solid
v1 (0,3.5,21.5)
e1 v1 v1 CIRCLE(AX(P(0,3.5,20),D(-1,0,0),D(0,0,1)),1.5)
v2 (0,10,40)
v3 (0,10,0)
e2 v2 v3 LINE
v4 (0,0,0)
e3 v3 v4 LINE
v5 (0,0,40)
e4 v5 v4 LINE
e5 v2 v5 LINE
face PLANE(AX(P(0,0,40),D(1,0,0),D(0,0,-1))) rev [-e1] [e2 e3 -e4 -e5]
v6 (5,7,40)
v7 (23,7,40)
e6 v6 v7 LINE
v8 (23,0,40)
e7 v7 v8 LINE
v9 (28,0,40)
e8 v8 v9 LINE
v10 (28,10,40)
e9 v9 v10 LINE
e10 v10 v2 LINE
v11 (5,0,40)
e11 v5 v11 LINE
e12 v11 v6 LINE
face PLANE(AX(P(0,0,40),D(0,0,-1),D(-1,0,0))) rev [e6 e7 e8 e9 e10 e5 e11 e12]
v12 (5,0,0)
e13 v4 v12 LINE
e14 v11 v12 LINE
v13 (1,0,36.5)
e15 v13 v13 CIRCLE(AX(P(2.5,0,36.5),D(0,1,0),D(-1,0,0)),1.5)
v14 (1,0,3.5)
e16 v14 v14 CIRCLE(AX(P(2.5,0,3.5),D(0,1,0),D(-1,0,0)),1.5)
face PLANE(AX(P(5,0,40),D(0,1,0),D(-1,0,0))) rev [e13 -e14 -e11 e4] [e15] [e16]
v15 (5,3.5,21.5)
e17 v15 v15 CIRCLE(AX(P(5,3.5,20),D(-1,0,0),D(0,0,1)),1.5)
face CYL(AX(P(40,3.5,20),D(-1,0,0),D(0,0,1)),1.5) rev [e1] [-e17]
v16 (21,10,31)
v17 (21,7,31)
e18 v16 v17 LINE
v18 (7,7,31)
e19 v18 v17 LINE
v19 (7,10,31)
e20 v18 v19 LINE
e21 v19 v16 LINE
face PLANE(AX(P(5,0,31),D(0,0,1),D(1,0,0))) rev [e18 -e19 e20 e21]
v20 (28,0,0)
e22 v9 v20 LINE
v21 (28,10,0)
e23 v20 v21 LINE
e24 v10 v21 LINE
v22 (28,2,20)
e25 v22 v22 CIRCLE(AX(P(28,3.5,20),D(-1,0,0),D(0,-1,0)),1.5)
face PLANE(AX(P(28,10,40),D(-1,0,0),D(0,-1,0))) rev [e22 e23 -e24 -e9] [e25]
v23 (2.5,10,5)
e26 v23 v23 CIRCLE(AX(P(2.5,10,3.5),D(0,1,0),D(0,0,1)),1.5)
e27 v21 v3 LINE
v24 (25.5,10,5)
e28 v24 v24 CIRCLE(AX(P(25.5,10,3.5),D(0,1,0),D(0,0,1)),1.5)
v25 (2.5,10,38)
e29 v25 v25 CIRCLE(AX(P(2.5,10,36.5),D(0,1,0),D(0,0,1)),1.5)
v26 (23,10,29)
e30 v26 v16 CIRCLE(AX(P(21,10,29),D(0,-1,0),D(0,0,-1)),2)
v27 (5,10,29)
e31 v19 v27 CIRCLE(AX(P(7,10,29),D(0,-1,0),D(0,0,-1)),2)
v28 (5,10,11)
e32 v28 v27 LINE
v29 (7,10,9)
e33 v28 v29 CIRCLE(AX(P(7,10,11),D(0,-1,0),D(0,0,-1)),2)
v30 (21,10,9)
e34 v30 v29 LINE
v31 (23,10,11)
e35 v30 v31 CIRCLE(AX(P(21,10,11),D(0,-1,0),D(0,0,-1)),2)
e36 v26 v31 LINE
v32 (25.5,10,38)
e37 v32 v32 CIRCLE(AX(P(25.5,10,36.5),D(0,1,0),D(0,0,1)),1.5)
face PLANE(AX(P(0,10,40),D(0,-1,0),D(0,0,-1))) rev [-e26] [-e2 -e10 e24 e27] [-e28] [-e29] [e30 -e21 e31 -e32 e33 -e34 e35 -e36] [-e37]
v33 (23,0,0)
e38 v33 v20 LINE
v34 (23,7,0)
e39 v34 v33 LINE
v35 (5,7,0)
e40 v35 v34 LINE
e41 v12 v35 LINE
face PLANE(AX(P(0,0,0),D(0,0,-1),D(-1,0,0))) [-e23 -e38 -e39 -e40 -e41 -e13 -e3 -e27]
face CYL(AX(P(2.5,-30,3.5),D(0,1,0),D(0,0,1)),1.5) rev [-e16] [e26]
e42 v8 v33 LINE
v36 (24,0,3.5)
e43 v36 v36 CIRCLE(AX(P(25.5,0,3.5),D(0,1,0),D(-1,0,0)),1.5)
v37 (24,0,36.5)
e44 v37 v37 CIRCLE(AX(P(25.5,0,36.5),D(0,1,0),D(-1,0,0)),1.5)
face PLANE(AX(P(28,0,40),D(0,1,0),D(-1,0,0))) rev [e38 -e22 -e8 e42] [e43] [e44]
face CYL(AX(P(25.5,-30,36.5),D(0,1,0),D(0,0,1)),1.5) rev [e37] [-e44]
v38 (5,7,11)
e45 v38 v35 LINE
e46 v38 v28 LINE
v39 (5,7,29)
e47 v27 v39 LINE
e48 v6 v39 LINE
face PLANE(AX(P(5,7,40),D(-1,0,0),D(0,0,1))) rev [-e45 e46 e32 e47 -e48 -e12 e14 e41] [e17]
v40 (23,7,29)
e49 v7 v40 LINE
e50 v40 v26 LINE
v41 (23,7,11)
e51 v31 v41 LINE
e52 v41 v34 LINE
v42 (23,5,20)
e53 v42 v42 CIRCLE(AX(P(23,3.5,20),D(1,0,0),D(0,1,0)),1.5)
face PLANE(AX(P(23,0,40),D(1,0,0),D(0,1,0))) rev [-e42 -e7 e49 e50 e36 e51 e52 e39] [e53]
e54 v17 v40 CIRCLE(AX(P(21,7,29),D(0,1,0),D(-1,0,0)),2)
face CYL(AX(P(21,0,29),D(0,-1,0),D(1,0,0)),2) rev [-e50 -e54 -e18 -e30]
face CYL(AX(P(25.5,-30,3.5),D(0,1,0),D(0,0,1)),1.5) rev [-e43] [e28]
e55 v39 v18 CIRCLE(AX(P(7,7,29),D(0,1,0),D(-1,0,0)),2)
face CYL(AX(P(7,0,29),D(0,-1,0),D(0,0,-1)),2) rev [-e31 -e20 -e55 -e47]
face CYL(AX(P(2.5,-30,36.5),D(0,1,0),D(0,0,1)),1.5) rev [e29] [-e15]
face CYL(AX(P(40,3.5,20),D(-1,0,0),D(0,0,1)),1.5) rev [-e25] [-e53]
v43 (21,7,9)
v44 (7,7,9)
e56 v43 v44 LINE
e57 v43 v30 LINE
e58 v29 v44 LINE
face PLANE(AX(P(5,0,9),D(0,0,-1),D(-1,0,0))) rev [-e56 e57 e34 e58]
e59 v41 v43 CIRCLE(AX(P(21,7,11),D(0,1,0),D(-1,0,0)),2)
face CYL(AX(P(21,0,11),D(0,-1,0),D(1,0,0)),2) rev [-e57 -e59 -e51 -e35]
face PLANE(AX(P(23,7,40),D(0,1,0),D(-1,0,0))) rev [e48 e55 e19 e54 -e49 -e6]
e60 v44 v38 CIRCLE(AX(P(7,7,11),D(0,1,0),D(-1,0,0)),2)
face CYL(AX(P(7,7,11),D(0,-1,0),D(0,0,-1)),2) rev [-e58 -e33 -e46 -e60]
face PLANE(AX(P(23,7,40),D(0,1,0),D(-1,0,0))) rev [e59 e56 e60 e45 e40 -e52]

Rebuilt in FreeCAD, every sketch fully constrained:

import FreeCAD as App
import Part
import Sketcher

V = App.Vector
Q = App.Units.Quantity


def edges_at(feature, points):
    """Names of the edges that pass closest to the given points."""
    edges = feature.Shape.Edges
    near = lambda p: min(range(len(edges)), key=lambda i: edges[i].distToShape(Part.Vertex(*p))[0])
    return sorted({f"Edge{near(p) + 1}" for p in points})

doc = App.newDocument("Part")
params = doc.addObject("Spreadsheet::Sheet", "Params")
for row, (alias, value) in enumerate([
    ("sketch1_width", "5 mm"),
    ("sketch1_width2", "18 mm"),
    ("sketch1_height", "10 mm"),
    ("sketch1_height2", "7 mm"),
    ("pad1_length", "40 mm"),
    ("sketch2_diameter", "3 mm"),
    ("pocket1_length", "40 mm"),
    ("sketch3_diameter", "3 mm"),
    ("pocket2_length", "40 mm"),
    ("sketch4_width", "18 mm"),
    ("sketch4_height", "22 mm"),
    ("fillet_radius", "2 mm"),
], start=1):
    params.set(f"A{row}", alias)
    params.set(f"B{row}", "=" + value)
    params.setAlias(f"B{row}", alias)

body = doc.addObject("PartDesign::Body", "Body")

# Sketch on XY plane
sketch1 = body.newObject("Sketcher::SketchObject", "Sketch")
sketch1.AttachmentSupport = (doc.getObject("XY_Plane"), [""])
sketch1.MapMode = "FlatFace"
sketch1.addGeometry(Part.LineSegment(V(0, 10, 0), V(0, 0, 0)), False)
sketch1.addGeometry(Part.LineSegment(V(0, 0, 0), V(5, 0, 0)), False)
sketch1.addGeometry(Part.LineSegment(V(5, 0, 0), V(5, 7, 0)), False)
sketch1.addGeometry(Part.LineSegment(V(5, 7, 0), V(23, 7, 0)), False)
sketch1.addGeometry(Part.LineSegment(V(23, 7, 0), V(23, 0, 0)), False)
sketch1.addGeometry(Part.LineSegment(V(23, 0, 0), V(28, 0, 0)), False)
sketch1.addGeometry(Part.LineSegment(V(28, 0, 0), V(28, 10, 0)), False)
sketch1.addGeometry(Part.LineSegment(V(28, 10, 0), V(0, 10, 0)), False)
sketch1.addConstraint(Sketcher.Constraint("Coincident", 0, 2, 1, 1))
sketch1.addConstraint(Sketcher.Constraint("Coincident", 1, 2, 2, 1))
sketch1.addConstraint(Sketcher.Constraint("Coincident", 2, 2, 3, 1))
sketch1.addConstraint(Sketcher.Constraint("Coincident", 3, 2, 4, 1))
sketch1.addConstraint(Sketcher.Constraint("Coincident", 4, 2, 5, 1))
sketch1.addConstraint(Sketcher.Constraint("Coincident", 5, 2, 6, 1))
sketch1.addConstraint(Sketcher.Constraint("Coincident", 6, 2, 7, 1))
sketch1.addConstraint(Sketcher.Constraint("Coincident", 7, 2, 0, 1))
sketch1.addConstraint(Sketcher.Constraint("Vertical", 0))
sketch1.addConstraint(Sketcher.Constraint("Horizontal", 1))
sketch1.addConstraint(Sketcher.Constraint("Vertical", 2))
sketch1.addConstraint(Sketcher.Constraint("Horizontal", 3))
sketch1.addConstraint(Sketcher.Constraint("Vertical", 4))
sketch1.addConstraint(Sketcher.Constraint("Horizontal", 5))
sketch1.addConstraint(Sketcher.Constraint("Vertical", 6))
sketch1.addConstraint(Sketcher.Constraint("Horizontal", 7))
sketch1.addConstraint(Sketcher.Constraint("Coincident", 0, 2, -1, 1))
sketch1.addConstraint(Sketcher.Constraint("PointOnObject", 4, 2, -1))
sketch1.addConstraint(Sketcher.Constraint("Equal", 1, 5))
sketch1.addConstraint(Sketcher.Constraint("DistanceX", 1, 1, 1, 2, Q("5 mm")))
sketch1.addConstraint(Sketcher.Constraint("DistanceX", 3, 1, 3, 2, Q("18 mm")))
sketch1.addConstraint(Sketcher.Constraint("DistanceY", 0, 2, 0, 1, Q("10 mm")))
sketch1.addConstraint(Sketcher.Constraint("DistanceY", 2, 1, 2, 2, Q("7 mm")))
sketch1.setExpression("Constraints[19]", "Params.sketch1_width")
sketch1.setExpression("Constraints[20]", "Params.sketch1_width2")
sketch1.setExpression("Constraints[21]", "Params.sketch1_height")
sketch1.setExpression("Constraints[22]", "Params.sketch1_height2")
pad1 = body.newObject("PartDesign::Pad", "Pad")
pad1.Profile = sketch1
pad1.setExpression("Length", "Params.pad1_length")

# Sketch on XZ plane
sketch2 = body.newObject("Sketcher::SketchObject", "Sketch001")
sketch2.AttachmentSupport = (doc.getObject("XZ_Plane"), [""])
sketch2.MapMode = "FlatFace"
sketch2.AttachmentOffset = App.Placement(V(0, 0, -10), App.Rotation())
sketch2.addGeometry(Part.Circle(V(2.5, 3.5, 0), V(0, 0, 1), 1.5), False)
sketch2.addGeometry(Part.Circle(V(2.5, 36.5, 0), V(0, 0, 1), 1.5), False)
sketch2.addGeometry(Part.Circle(V(25.5, 36.5, 0), V(0, 0, 1), 1.5), False)
sketch2.addGeometry(Part.Circle(V(25.5, 3.5, 0), V(0, 0, 1), 1.5), False)
sketch2.addConstraint(Sketcher.Constraint("Equal", 0, 1))
sketch2.addConstraint(Sketcher.Constraint("Equal", 1, 2))
sketch2.addConstraint(Sketcher.Constraint("Equal", 2, 3))
sketch2.addConstraint(Sketcher.Constraint("Horizontal", 1, 3, 2, 3))
sketch2.addConstraint(Sketcher.Constraint("Horizontal", 0, 3, 3, 3))
sketch2.addConstraint(Sketcher.Constraint("Vertical", 0, 3, 1, 3))
sketch2.addConstraint(Sketcher.Constraint("Vertical", 2, 3, 3, 3))
sketch2.addConstraint(Sketcher.Constraint("Diameter", 0, Q("3 mm")))
sketch2.addConstraint(Sketcher.Constraint("DistanceY", 0, 3, 1, 3, Q("33 mm")))
sketch2.addConstraint(Sketcher.Constraint("DistanceX", 1, 3, 2, 3, Q("23 mm")))
sketch2.addConstraint(Sketcher.Constraint("DistanceX", -1, 1, 0, 3, Q("2.5 mm")))
sketch2.addConstraint(Sketcher.Constraint("DistanceY", -1, 1, 0, 3, Q("3.5 mm")))
sketch2.setExpression("Constraints[7]", "Params.sketch2_diameter")
pocket1 = body.newObject("PartDesign::Pocket", "Pocket")
pocket1.Profile = sketch2
pocket1.setExpression("Length", "Params.pocket1_length")
pocket1.Reversed = True

# Sketch on YZ plane
sketch3 = body.newObject("Sketcher::SketchObject", "Sketch002")
sketch3.AttachmentSupport = (doc.getObject("YZ_Plane"), [""])
sketch3.MapMode = "FlatFace"
sketch3.addGeometry(Part.Circle(V(3.5, 20, 0), V(0, 0, 1), 1.5), False)
sketch3.addConstraint(Sketcher.Constraint("Diameter", 0, Q("3 mm")))
sketch3.addConstraint(Sketcher.Constraint("DistanceY", -1, 1, 0, 3, Q("20 mm")))
sketch3.addConstraint(Sketcher.Constraint("DistanceX", -1, 1, 0, 3, Q("3.5 mm")))
sketch3.setExpression("Constraints[0]", "Params.sketch3_diameter")
pocket2 = body.newObject("PartDesign::Pocket", "Pocket001")
pocket2.Profile = sketch3
pocket2.setExpression("Length", "Params.pocket2_length")
pocket2.Reversed = True

# Sketch on XZ plane
sketch4 = body.newObject("Sketcher::SketchObject", "Sketch003")
sketch4.AttachmentSupport = (doc.getObject("XZ_Plane"), [""])
sketch4.MapMode = "FlatFace"
sketch4.AttachmentOffset = App.Placement(V(0, 0, -10), App.Rotation())
sketch4.addGeometry(Part.LineSegment(V(5, 9, 0), V(5, 31, 0)), False)
sketch4.addGeometry(Part.LineSegment(V(5, 31, 0), V(23, 31, 0)), False)
sketch4.addGeometry(Part.LineSegment(V(23, 31, 0), V(23, 9, 0)), False)
sketch4.addGeometry(Part.LineSegment(V(23, 9, 0), V(5, 9, 0)), False)
sketch4.addConstraint(Sketcher.Constraint("Coincident", 0, 2, 1, 1))
sketch4.addConstraint(Sketcher.Constraint("Coincident", 1, 2, 2, 1))
sketch4.addConstraint(Sketcher.Constraint("Coincident", 2, 2, 3, 1))
sketch4.addConstraint(Sketcher.Constraint("Coincident", 3, 2, 0, 1))
sketch4.addConstraint(Sketcher.Constraint("Vertical", 0))
sketch4.addConstraint(Sketcher.Constraint("Horizontal", 1))
sketch4.addConstraint(Sketcher.Constraint("Vertical", 2))
sketch4.addConstraint(Sketcher.Constraint("Horizontal", 3))
sketch4.addConstraint(Sketcher.Constraint("DistanceX", 1, 1, 1, 2, Q("18 mm")))
sketch4.addConstraint(Sketcher.Constraint("DistanceY", 0, 1, 0, 2, Q("22 mm")))
sketch4.addConstraint(Sketcher.Constraint("DistanceX", -1, 1, 0, 2, Q("5 mm")))
sketch4.addConstraint(Sketcher.Constraint("DistanceY", -1, 1, 0, 2, Q("31 mm")))
sketch4.setExpression("Constraints[8]", "Params.sketch4_width")
sketch4.setExpression("Constraints[9]", "Params.sketch4_height")
pocket3 = body.newObject("PartDesign::Pocket", "Pocket002")
pocket3.Profile = sketch4
pocket3.Type = "ThroughAll"
pocket3.Reversed = True
doc.recompute()

fillet = body.newObject("PartDesign::Fillet", "Fillet")
fillet.Base = (pocket3, edges_at(pocket3, [
    (23, 8.5, 31),
    (5, 8.5, 9),
    (5, 8.5, 31),
    (23, 8.5, 9),
]))
fillet.setExpression("Radius", "Params.fillet_radius")

doc.recompute()
